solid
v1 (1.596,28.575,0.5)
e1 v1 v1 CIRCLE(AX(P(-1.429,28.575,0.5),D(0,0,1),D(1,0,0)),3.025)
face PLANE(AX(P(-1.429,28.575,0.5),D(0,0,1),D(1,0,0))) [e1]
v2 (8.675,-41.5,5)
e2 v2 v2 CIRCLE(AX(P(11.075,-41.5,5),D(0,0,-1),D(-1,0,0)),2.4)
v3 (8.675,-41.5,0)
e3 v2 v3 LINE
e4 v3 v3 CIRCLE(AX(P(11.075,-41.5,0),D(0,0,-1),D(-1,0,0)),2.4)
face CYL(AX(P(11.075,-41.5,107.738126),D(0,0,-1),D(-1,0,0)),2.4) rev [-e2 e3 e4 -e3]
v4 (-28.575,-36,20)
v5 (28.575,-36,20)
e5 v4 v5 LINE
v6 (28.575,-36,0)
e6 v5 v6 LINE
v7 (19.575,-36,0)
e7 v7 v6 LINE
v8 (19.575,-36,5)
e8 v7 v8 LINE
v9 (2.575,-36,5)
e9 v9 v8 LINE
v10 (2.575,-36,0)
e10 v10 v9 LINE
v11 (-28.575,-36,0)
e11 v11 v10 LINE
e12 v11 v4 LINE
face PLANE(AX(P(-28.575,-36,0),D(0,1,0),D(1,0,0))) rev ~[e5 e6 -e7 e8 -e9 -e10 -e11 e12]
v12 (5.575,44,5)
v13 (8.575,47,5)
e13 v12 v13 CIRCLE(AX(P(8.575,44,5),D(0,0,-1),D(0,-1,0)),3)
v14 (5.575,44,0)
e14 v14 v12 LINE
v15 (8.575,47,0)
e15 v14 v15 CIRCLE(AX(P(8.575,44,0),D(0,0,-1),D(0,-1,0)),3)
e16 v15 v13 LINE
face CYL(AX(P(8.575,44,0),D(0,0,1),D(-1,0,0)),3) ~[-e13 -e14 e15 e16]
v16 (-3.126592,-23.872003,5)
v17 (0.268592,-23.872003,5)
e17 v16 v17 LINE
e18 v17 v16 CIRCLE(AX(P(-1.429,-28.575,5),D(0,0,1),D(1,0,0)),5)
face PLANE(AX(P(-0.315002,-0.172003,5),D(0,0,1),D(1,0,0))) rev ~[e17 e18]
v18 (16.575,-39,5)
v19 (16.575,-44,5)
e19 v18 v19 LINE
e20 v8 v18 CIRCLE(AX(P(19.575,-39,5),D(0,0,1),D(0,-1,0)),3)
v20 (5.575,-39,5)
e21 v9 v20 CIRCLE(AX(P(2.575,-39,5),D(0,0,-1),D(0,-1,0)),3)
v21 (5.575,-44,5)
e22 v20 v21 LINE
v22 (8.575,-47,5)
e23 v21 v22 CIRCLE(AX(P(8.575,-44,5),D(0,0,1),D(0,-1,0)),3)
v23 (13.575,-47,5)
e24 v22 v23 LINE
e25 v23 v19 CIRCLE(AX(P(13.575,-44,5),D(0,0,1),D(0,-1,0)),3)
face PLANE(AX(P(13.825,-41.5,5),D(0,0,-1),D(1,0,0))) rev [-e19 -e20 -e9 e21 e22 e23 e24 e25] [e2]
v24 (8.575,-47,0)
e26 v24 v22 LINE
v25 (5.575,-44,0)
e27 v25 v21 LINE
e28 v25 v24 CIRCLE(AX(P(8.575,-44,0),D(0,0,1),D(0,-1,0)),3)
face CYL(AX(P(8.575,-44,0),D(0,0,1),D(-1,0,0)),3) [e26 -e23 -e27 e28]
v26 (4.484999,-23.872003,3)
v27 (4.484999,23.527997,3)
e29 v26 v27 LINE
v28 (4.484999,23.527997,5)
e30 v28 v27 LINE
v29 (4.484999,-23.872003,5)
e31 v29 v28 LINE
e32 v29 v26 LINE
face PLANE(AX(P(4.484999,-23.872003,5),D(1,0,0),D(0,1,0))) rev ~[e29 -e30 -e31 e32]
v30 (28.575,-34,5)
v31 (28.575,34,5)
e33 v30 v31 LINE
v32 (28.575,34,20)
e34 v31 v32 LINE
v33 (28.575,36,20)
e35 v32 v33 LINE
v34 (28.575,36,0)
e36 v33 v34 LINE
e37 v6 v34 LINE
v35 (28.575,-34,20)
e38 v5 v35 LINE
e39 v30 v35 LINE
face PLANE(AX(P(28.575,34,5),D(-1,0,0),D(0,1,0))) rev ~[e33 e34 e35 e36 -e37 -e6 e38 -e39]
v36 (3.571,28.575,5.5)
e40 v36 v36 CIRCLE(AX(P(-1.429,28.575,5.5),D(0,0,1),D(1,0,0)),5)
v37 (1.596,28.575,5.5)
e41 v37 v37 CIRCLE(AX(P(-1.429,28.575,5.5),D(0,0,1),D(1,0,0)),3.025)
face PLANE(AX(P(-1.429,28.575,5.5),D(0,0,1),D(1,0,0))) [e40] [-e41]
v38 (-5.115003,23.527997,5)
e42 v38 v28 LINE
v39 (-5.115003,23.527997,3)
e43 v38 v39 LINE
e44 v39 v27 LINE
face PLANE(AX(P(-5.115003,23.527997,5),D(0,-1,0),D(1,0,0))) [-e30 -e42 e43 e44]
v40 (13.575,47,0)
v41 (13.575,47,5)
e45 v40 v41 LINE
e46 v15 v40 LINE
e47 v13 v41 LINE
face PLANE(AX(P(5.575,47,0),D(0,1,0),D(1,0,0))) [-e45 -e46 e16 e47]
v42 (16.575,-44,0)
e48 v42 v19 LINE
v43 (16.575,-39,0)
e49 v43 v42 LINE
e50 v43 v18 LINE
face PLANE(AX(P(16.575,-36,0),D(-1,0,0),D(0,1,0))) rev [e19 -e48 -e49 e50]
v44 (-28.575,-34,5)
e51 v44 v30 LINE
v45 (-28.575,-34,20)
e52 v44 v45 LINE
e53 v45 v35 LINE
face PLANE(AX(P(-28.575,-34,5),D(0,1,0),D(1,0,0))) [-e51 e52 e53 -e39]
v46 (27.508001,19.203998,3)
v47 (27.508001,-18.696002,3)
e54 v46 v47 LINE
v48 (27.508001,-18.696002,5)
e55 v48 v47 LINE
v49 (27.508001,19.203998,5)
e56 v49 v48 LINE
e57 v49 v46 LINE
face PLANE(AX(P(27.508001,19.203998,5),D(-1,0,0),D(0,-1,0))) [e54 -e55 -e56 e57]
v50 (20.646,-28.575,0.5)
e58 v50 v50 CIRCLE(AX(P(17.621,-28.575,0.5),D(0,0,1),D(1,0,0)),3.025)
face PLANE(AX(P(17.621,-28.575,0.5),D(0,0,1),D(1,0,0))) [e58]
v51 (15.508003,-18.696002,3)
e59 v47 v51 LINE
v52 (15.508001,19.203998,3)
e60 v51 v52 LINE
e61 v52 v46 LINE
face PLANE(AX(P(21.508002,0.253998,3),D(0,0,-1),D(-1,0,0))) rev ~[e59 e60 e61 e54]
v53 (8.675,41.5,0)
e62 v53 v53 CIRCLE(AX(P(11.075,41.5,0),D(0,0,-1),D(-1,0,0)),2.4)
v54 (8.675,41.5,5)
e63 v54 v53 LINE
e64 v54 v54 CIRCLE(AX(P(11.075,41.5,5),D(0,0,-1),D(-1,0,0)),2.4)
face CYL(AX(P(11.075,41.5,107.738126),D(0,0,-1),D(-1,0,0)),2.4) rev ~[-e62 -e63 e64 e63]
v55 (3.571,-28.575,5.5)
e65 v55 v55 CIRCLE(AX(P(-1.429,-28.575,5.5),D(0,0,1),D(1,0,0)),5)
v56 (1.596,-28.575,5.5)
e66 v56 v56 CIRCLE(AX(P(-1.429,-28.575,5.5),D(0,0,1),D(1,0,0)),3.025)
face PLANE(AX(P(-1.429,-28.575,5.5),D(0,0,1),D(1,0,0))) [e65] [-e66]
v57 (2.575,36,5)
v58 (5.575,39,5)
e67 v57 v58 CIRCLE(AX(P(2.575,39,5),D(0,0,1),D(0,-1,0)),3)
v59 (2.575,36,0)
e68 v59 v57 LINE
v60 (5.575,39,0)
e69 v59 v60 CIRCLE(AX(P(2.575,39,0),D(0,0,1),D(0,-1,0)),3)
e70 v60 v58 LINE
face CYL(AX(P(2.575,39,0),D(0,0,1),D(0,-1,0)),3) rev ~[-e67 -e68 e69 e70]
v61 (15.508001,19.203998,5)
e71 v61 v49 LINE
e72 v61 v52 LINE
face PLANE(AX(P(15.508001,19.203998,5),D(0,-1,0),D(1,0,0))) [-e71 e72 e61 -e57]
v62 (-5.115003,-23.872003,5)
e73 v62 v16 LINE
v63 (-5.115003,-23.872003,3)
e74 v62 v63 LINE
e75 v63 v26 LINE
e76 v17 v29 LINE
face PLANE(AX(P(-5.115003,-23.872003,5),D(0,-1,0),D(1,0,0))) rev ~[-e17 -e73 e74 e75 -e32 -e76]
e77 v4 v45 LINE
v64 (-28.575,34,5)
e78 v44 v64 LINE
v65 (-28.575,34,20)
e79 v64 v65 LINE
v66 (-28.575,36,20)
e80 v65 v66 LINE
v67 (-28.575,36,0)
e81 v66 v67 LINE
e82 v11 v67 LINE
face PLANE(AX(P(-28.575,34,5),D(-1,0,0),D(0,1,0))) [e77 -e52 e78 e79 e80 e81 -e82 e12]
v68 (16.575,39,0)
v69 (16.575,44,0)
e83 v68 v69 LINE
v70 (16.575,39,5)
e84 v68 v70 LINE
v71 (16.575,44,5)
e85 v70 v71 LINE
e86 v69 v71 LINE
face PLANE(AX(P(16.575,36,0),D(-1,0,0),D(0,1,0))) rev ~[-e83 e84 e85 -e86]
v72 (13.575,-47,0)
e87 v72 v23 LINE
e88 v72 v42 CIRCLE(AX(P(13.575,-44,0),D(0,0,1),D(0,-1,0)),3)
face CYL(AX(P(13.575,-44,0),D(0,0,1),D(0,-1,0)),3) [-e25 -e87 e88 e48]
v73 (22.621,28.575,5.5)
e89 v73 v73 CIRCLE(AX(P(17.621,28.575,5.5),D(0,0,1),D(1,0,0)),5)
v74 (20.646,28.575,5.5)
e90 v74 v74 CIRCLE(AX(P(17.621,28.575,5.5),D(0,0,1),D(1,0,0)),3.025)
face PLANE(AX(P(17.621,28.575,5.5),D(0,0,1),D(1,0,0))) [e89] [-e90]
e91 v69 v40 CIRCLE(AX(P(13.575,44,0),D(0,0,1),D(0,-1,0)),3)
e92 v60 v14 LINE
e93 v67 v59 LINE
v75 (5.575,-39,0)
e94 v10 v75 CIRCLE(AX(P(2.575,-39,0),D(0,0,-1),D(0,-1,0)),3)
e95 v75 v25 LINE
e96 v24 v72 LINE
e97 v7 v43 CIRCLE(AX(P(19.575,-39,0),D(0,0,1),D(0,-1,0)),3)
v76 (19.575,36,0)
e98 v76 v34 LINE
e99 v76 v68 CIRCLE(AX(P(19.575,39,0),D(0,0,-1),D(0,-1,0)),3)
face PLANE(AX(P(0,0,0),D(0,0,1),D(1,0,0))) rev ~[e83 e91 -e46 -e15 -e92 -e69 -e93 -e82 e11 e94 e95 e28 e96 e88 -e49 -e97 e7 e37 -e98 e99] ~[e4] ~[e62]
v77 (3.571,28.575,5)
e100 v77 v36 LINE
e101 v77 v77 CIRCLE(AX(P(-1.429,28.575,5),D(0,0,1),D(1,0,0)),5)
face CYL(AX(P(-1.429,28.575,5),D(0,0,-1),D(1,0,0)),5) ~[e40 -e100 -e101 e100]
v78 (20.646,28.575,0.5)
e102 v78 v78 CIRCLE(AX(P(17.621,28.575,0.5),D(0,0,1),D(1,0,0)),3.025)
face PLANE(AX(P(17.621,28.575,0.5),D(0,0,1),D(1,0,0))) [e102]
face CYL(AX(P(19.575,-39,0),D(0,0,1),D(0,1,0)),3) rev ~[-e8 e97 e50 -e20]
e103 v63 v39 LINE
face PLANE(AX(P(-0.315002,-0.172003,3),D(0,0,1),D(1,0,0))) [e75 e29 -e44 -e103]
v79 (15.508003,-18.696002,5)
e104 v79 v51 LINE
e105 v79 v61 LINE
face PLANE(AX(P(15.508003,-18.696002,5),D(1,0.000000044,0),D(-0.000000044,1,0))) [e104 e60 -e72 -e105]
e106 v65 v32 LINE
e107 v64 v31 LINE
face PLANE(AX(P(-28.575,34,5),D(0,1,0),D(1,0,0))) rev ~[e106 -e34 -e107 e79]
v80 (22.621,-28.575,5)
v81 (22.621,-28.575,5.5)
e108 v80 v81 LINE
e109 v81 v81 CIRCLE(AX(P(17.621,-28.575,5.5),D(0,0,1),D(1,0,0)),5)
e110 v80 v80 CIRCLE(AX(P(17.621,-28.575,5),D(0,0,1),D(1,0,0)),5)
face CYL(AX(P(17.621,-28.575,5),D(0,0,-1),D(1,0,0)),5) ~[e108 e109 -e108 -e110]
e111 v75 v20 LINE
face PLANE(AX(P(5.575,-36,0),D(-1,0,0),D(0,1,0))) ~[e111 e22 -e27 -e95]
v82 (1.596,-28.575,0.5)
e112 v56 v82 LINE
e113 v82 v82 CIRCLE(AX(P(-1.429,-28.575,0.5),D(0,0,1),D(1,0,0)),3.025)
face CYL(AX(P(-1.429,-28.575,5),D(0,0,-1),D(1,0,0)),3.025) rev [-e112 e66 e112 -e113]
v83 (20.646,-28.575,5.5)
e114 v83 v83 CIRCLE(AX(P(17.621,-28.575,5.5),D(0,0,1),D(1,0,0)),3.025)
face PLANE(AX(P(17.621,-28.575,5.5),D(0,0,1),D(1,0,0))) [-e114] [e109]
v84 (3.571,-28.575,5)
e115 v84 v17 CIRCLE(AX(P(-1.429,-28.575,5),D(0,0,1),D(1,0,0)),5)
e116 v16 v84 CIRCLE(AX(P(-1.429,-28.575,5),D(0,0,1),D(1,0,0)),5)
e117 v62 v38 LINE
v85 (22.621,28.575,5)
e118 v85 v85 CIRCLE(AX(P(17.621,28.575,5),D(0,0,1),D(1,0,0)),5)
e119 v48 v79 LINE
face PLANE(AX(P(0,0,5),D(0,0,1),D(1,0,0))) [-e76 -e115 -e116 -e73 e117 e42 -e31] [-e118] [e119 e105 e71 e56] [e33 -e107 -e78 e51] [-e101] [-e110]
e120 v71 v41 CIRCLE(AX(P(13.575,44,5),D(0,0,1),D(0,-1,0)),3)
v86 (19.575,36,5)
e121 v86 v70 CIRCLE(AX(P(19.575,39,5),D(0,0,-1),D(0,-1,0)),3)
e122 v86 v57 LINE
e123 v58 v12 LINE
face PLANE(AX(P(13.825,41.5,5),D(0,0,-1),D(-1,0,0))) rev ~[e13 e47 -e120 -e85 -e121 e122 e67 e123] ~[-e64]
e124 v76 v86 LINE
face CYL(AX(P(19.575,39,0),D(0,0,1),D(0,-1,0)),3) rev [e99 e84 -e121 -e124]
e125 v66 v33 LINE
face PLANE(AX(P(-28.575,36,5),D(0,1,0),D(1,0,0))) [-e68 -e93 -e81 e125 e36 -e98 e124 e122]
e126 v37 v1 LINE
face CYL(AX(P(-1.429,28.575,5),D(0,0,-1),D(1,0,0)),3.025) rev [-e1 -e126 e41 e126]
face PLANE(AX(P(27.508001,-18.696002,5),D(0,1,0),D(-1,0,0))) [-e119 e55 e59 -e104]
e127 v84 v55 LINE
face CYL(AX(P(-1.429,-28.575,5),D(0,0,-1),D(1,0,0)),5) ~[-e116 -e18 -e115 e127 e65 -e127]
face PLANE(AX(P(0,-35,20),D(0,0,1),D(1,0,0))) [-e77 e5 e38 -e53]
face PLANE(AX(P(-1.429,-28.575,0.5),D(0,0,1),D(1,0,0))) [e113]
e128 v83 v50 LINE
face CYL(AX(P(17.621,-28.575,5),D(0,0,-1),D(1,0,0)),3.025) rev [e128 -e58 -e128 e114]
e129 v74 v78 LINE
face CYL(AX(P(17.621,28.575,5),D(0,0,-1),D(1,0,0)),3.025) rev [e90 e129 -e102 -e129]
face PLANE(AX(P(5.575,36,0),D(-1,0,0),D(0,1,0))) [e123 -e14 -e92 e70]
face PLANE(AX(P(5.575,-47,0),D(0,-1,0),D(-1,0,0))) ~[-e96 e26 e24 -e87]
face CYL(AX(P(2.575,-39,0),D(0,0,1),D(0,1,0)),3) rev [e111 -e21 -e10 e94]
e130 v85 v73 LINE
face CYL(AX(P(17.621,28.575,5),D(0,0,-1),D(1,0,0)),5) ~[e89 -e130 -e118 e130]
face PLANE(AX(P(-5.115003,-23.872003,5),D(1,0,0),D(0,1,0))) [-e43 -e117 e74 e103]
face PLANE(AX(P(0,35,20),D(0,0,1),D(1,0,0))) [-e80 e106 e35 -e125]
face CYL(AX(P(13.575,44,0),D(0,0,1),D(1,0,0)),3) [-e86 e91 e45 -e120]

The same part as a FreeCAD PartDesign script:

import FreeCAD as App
import Part
import Sketcher
Q = App.Units.Quantity


def edges_at(feature, points):
    """Names of the edges that pass closest to the given points."""
    edges = feature.Shape.Edges
    near = lambda p: min(range(len(edges)), key=lambda i: edges[i].distToShape(Part.Vertex(*p))[0])
    return sorted({f"Edge{near(p) + 1}" for p in points})


def add_polygon(sketch, points):
    """Adds a closed chain of lines whose ends are joined by coincident constraints."""
    first, n = sketch.GeometryCount, len(points)
    for a, b in zip(points, points[1:] + points[:1]):
        sketch.addGeometry(Part.LineSegment(App.Vector(*a, 0), App.Vector(*b, 0)), False)
    for i in range(n):
        sketch.addConstraint(Sketcher.Constraint("Coincident", first + i, 2, first + (i + 1) % n, 1))

doc = App.newDocument("Part")
body = doc.addObject("PartDesign::Body", "Body")

# Sketch on XY plane
sketch1 = body.newObject("Sketcher::SketchObject", "Sketch")
sketch1.AttachmentSupport = (doc.getObject("XY_Plane"), [""])
sketch1.MapMode = "FlatFace"
add_polygon(sketch1, [(-28.575, 36), (-28.575, -36), (28.575, -36), (28.575, 36)])  # lines 0-3
sketch1.addConstraint(Sketcher.Constraint("Vertical", 0))
sketch1.addConstraint(Sketcher.Constraint("Horizontal", 1))
sketch1.addConstraint(Sketcher.Constraint("Vertical", 2))
sketch1.addConstraint(Sketcher.Constraint("Horizontal", 3))
sketch1.addConstraint(Sketcher.Constraint("Symmetric", 0, 2, 2, 2, -1, 1))
sketch1.addConstraint(Sketcher.Constraint("DistanceY", 0, 2, 0, 1, Q("72 mm")))
sketch1.addConstraint(Sketcher.Constraint("DistanceX", 1, 1, 1, 2, Q("57.15 mm")))
pad1 = body.newObject("PartDesign::Pad", "Pad")
pad1.Profile = sketch1
pad1.Length = 5

# Sketch on XY plane
sketch2 = body.newObject("Sketcher::SketchObject", "Sketch001")
sketch2.AttachmentSupport = (doc.getObject("XY_Plane"), [""])
sketch2.MapMode = "FlatFace"
sketch2.AttachmentOffset = App.Placement(App.Vector(0, 0, 5), App.Rotation())
sketch2.addGeometry(Part.Circle(App.Vector(17.621, 28.575, 0), App.Vector(0, 0, 1), 5), False)
sketch2.addGeometry(Part.Circle(App.Vector(17.621, 28.575, 0), App.Vector(0, 0, 1), 3.025), False)
sketch2.addGeometry(Part.Circle(App.Vector(17.621, -28.575, 0), App.Vector(0, 0, 1), 5), False)
sketch2.addGeometry(Part.Circle(App.Vector(17.621, -28.575, 0), App.Vector(0, 0, 1), 3.025), False)
sketch2.addGeometry(Part.Circle(App.Vector(-1.429, -28.575, 0), App.Vector(0, 0, 1), 5), False)
sketch2.addGeometry(Part.Circle(App.Vector(-1.429, -28.575, 0), App.Vector(0, 0, 1), 3.025), False)
sketch2.addGeometry(Part.Circle(App.Vector(-1.429, 28.575, 0), App.Vector(0, 0, 1), 5), False)
sketch2.addGeometry(Part.Circle(App.Vector(-1.429, 28.575, 0), App.Vector(0, 0, 1), 3.025), False)
sketch2.addConstraint(Sketcher.Constraint("Coincident", 1, 3, 0, 3))
sketch2.addConstraint(Sketcher.Constraint("Coincident", 3, 3, 2, 3))
sketch2.addConstraint(Sketcher.Constraint("Coincident", 5, 3, 4, 3))
sketch2.addConstraint(Sketcher.Constraint("Coincident", 7, 3, 6, 3))
sketch2.addConstraint(Sketcher.Constraint("Equal", 0, 2))
sketch2.addConstraint(Sketcher.Constraint("Equal", 1, 3))
sketch2.addConstraint(Sketcher.Constraint("Equal", 2, 4))
sketch2.addConstraint(Sketcher.Constraint("Equal", 3, 5))
sketch2.addConstraint(Sketcher.Constraint("Equal", 4, 6))
sketch2.addConstraint(Sketcher.Constraint("Equal", 5, 7))
sketch2.addConstraint(Sketcher.Constraint("Symmetric", 0, 3, 2, 3, -1))
sketch2.addConstraint(Sketcher.Constraint("Symmetric", 4, 3, 6, 3, -1))
sketch2.addConstraint(Sketcher.Constraint("Horizontal", 3, 3, 4, 3))
sketch2.addConstraint(Sketcher.Constraint("Diameter", 0, Q("10 mm")))
sketch2.addConstraint(Sketcher.Constraint("Diameter", 1, Q("6.05 mm")))
sketch2.addConstraint(Sketcher.Constraint("DistanceY", 2, 3, 0, 3, Q("57.15 mm")))
sketch2.addConstraint(Sketcher.Constraint("DistanceX", 4, 3, 2, 3, Q("19.05 mm")))
sketch2.addConstraint(Sketcher.Constraint("DistanceX", -1, 1, 0, 3, Q("17.621 mm")))
pad2 = body.newObject("PartDesign::Pad", "Pad001")
pad2.Profile = sketch2
pad2.Length = 0.5

# Sketch on XY plane
sketch3 = body.newObject("Sketcher::SketchObject", "Sketch002")
sketch3.AttachmentSupport = (doc.getObject("XY_Plane"), [""])
sketch3.MapMode = "FlatFace"
sketch3.AttachmentOffset = App.Placement(App.Vector(0, 0, 0.5), App.Rotation())
sketch3.addGeometry(Part.Circle(App.Vector(-1.429, 28.575, 0), App.Vector(0, 0, 1), 3.025), False)
sketch3.addGeometry(Part.Circle(App.Vector(17.621, 28.575, 0), App.Vector(0, 0, 1), 3.025), False)
sketch3.addGeometry(Part.Circle(App.Vector(-1.429, -28.575, 0), App.Vector(0, 0, 1), 3.025), False)
sketch3.addGeometry(Part.Circle(App.Vector(17.621, -28.575, 0), App.Vector(0, 0, 1), 3.025), False)
sketch3.addConstraint(Sketcher.Constraint("Equal", 0, 1))
sketch3.addConstraint(Sketcher.Constraint("Equal", 1, 2))
sketch3.addConstraint(Sketcher.Constraint("Equal", 2, 3))
sketch3.addConstraint(Sketcher.Constraint("Symmetric", 0, 3, 2, 3, -1))
sketch3.addConstraint(Sketcher.Constraint("Symmetric", 1, 3, 3, 3, -1))
sketch3.addConstraint(Sketcher.Constraint("Horizontal", 0, 3, 1, 3))
sketch3.addConstraint(Sketcher.Constraint("Diameter", 0, Q("6.05 mm")))
sketch3.addConstraint(Sketcher.Constraint("DistanceX", 0, 3, 1, 3, Q("19.05 mm")))
sketch3.addConstraint(Sketcher.Constraint("DistanceY", 2, 3, 0, 3, Q("57.15 mm")))
sketch3.addConstraint(Sketcher.Constraint("DistanceX", 0, 3, -1, 1, Q("1.429 mm")))
pocket1 = body.newObject("PartDesign::Pocket", "Pocket")
pocket1.Profile = sketch3
pocket1.Length = 4.5
pocket1.Reversed = True

# Sketch on XY plane
sketch4 = body.newObject("Sketcher::SketchObject", "Sketch003")
sketch4.AttachmentSupport = (doc.getObject("XY_Plane"), [""])
sketch4.MapMode = "FlatFace"
sketch4.AttachmentOffset = App.Placement(App.Vector(0, 0, 5), App.Rotation())
add_polygon(sketch4, [(-5.115003, 23.527997), (-5.115003, -23.872003), (4.484999, -23.872003), (4.484999, 23.527997)])  # lines 0-3
add_polygon(sketch4, [(27.508001, 19.203998), (15.508001, 19.203998), (15.508003, -18.696002), (27.508001, -18.696002)])  # lines 4-7
sketch4.addConstraint(Sketcher.Constraint("Vertical", 0))
sketch4.addConstraint(Sketcher.Constraint("Horizontal", 1))
sketch4.addConstraint(Sketcher.Constraint("Vertical", 2))
sketch4.addConstraint(Sketcher.Constraint("Horizontal", 3))
sketch4.addConstraint(Sketcher.Constraint("Horizontal", 4))
sketch4.addConstraint(Sketcher.Constraint("Vertical", 5))
sketch4.addConstraint(Sketcher.Constraint("Horizontal", 6))
sketch4.addConstraint(Sketcher.Constraint("Vertical", 7))
sketch4.addConstraint(Sketcher.Constraint("DistanceX", 4, 2, 4, 1, Q("12 mm")))
sketch4.addConstraint(Sketcher.Constraint("DistanceY", 0, 2, 0, 1, Q("47.4 mm")))
sketch4.addConstraint(Sketcher.Constraint("DistanceY", 5, 2, 5, 1, Q("37.9 mm")))
sketch4.addConstraint(Sketcher.Constraint("DistanceX", -1, 1, 1, 2, Q("4.484999 mm")))
sketch4.addConstraint(Sketcher.Constraint("DistanceX", -1, 1, 4, 2, Q("15.508001 mm")))
sketch4.addConstraint(Sketcher.Constraint("DistanceY", 4, 2, 2, 2, Q("4.323999 mm")))
sketch4.addConstraint(Sketcher.Constraint("DistanceX", 1, 1, 1, 2, Q("9.600002 mm")))
sketch4.addConstraint(Sketcher.Constraint("DistanceY", 0, 2, -1, 1, Q("23.872003 mm")))
pocket2 = body.newObject("PartDesign::Pocket", "Pocket001")
pocket2.Profile = sketch4
pocket2.Length = 2

# Sketch on XY plane
sketch5 = body.newObject("Sketcher::SketchObject", "Sketch004")
sketch5.AttachmentSupport = (doc.getObject("XY_Plane"), [""])
sketch5.MapMode = "FlatFace"
sketch5.AttachmentOffset = App.Placement(App.Vector(0, 0, 5), App.Rotation())
add_polygon(sketch5, [(-28.575, 36), (-28.575, 34), (28.575, 34), (28.575, 36)])  # lines 0-3
add_polygon(sketch5, [(-28.575, -34), (-28.575, -36), (28.575, -36), (28.575, -34)])  # lines 4-7
sketch5.addConstraint(Sketcher.Constraint("Vertical", 0))
sketch5.addConstraint(Sketcher.Constraint("Horizontal", 1))
sketch5.addConstraint(Sketcher.Constraint("Vertical", 2))
sketch5.addConstraint(Sketcher.Constraint("Horizontal", 3))
sketch5.addConstraint(Sketcher.Constraint("Vertical", 4))
sketch5.addConstraint(Sketcher.Constraint("Horizontal", 5))
sketch5.addConstraint(Sketcher.Constraint("Vertical", 6))
sketch5.addConstraint(Sketcher.Constraint("Horizontal", 7))
sketch5.addConstraint(Sketcher.Constraint("Symmetric", 2, 2, 4, 2, -1, 1))
sketch5.addConstraint(Sketcher.Constraint("Symmetric", 0, 2, 6, 2, -1, 1))
sketch5.addConstraint(Sketcher.Constraint("Vertical", 3, 2, 4, 2))
sketch5.addConstraint(Sketcher.Constraint("DistanceY", 0, 2, 0, 1, Q("2 mm")))
sketch5.addConstraint(Sketcher.Constraint("DistanceY", -1, 1, 0, 2, Q("34 mm")))
sketch5.addConstraint(Sketcher.Constraint("DistanceX", 1, 1, 1, 2, Q("57.15 mm")))
pad3 = body.newObject("PartDesign::Pad", "Pad002")
pad3.Profile = sketch5
pad3.Length = 15

# Sketch on XY plane
sketch6 = body.newObject("Sketcher::SketchObject", "Sketch005")
sketch6.AttachmentSupport = (doc.getObject("XY_Plane"), [""])
sketch6.MapMode = "FlatFace"
add_polygon(sketch6, [(16.575, 47), (16.575, 36), (5.575, 36), (5.575, 47)])  # lines 0-3
sketch6.addConstraint(Sketcher.Constraint("Vertical", 0))
sketch6.addConstraint(Sketcher.Constraint("Horizontal", 1))
sketch6.addConstraint(Sketcher.Constraint("Vertical", 2))
sketch6.addConstraint(Sketcher.Constraint("Horizontal", 3))
sketch6.addConstraint(Sketcher.Constraint("Equal", 3, 0))
sketch6.addConstraint(Sketcher.Constraint("DistanceX", 1, 2, 1, 1, Q("11 mm")))
sketch6.addConstraint(Sketcher.Constraint("DistanceY", -1, 1, 0, 2, Q("36 mm")))
sketch6.addConstraint(Sketcher.Constraint("DistanceX", -1, 1, 0, 2, Q("16.575 mm")))
pad4 = body.newObject("PartDesign::Pad", "Pad003")
pad4.Profile = sketch6
pad4.Length = 5

# Sketch on XY plane
sketch7 = body.newObject("Sketcher::SketchObject", "Sketch006")
sketch7.AttachmentSupport = (doc.getObject("XY_Plane"), [""])
sketch7.MapMode = "FlatFace"
sketch7.AttachmentOffset = App.Placement(App.Vector(0, 0, 5), App.Rotation())
sketch7.addGeometry(Part.Circle(App.Vector(11.075, 41.5, 0), App.Vector(0, 0, 1), 2.4), False)
sketch7.addConstraint(Sketcher.Constraint("Diameter", 0, Q("4.8 mm")))
sketch7.addConstraint(Sketcher.Constraint("DistanceY", -1, 1, 0, 3, Q("41.5 mm")))
sketch7.addConstraint(Sketcher.Constraint("DistanceX", -1, 1, 0, 3, Q("11.075 mm")))
doc.recompute()
hole = body.newObject("PartDesign::Hole", "Hole")
hole.Profile = sketch7
hole.ThreadType = "None"
hole.Diameter = 4.8
hole.DepthType = "ThroughAll"
doc.recompute()

mirrored = body.newObject("PartDesign::Mirrored", "Mirrored")
mirrored.Originals = [pad4, hole]
mirrored.MirrorPlane = (doc.getObject("XZ_Plane"), [""])
body.Tip = mirrored
doc.recompute()

fillet = body.newObject("PartDesign::Fillet", "Fillet")
fillet.Base = (mirrored, edges_at(mirrored, [
    (5.575, 36, 2.5),
    (16.575, 36, 2.5),
    (16.575, 47, 2.5),
    (5.575, 47, 2.5),
    (16.575, -36, 2.5),
    (5.575, -36, 2.5),
    (5.575, -47, 2.5),
    (16.575, -47, 2.5),
]))
fillet.Radius = 3

doc.recompute()
